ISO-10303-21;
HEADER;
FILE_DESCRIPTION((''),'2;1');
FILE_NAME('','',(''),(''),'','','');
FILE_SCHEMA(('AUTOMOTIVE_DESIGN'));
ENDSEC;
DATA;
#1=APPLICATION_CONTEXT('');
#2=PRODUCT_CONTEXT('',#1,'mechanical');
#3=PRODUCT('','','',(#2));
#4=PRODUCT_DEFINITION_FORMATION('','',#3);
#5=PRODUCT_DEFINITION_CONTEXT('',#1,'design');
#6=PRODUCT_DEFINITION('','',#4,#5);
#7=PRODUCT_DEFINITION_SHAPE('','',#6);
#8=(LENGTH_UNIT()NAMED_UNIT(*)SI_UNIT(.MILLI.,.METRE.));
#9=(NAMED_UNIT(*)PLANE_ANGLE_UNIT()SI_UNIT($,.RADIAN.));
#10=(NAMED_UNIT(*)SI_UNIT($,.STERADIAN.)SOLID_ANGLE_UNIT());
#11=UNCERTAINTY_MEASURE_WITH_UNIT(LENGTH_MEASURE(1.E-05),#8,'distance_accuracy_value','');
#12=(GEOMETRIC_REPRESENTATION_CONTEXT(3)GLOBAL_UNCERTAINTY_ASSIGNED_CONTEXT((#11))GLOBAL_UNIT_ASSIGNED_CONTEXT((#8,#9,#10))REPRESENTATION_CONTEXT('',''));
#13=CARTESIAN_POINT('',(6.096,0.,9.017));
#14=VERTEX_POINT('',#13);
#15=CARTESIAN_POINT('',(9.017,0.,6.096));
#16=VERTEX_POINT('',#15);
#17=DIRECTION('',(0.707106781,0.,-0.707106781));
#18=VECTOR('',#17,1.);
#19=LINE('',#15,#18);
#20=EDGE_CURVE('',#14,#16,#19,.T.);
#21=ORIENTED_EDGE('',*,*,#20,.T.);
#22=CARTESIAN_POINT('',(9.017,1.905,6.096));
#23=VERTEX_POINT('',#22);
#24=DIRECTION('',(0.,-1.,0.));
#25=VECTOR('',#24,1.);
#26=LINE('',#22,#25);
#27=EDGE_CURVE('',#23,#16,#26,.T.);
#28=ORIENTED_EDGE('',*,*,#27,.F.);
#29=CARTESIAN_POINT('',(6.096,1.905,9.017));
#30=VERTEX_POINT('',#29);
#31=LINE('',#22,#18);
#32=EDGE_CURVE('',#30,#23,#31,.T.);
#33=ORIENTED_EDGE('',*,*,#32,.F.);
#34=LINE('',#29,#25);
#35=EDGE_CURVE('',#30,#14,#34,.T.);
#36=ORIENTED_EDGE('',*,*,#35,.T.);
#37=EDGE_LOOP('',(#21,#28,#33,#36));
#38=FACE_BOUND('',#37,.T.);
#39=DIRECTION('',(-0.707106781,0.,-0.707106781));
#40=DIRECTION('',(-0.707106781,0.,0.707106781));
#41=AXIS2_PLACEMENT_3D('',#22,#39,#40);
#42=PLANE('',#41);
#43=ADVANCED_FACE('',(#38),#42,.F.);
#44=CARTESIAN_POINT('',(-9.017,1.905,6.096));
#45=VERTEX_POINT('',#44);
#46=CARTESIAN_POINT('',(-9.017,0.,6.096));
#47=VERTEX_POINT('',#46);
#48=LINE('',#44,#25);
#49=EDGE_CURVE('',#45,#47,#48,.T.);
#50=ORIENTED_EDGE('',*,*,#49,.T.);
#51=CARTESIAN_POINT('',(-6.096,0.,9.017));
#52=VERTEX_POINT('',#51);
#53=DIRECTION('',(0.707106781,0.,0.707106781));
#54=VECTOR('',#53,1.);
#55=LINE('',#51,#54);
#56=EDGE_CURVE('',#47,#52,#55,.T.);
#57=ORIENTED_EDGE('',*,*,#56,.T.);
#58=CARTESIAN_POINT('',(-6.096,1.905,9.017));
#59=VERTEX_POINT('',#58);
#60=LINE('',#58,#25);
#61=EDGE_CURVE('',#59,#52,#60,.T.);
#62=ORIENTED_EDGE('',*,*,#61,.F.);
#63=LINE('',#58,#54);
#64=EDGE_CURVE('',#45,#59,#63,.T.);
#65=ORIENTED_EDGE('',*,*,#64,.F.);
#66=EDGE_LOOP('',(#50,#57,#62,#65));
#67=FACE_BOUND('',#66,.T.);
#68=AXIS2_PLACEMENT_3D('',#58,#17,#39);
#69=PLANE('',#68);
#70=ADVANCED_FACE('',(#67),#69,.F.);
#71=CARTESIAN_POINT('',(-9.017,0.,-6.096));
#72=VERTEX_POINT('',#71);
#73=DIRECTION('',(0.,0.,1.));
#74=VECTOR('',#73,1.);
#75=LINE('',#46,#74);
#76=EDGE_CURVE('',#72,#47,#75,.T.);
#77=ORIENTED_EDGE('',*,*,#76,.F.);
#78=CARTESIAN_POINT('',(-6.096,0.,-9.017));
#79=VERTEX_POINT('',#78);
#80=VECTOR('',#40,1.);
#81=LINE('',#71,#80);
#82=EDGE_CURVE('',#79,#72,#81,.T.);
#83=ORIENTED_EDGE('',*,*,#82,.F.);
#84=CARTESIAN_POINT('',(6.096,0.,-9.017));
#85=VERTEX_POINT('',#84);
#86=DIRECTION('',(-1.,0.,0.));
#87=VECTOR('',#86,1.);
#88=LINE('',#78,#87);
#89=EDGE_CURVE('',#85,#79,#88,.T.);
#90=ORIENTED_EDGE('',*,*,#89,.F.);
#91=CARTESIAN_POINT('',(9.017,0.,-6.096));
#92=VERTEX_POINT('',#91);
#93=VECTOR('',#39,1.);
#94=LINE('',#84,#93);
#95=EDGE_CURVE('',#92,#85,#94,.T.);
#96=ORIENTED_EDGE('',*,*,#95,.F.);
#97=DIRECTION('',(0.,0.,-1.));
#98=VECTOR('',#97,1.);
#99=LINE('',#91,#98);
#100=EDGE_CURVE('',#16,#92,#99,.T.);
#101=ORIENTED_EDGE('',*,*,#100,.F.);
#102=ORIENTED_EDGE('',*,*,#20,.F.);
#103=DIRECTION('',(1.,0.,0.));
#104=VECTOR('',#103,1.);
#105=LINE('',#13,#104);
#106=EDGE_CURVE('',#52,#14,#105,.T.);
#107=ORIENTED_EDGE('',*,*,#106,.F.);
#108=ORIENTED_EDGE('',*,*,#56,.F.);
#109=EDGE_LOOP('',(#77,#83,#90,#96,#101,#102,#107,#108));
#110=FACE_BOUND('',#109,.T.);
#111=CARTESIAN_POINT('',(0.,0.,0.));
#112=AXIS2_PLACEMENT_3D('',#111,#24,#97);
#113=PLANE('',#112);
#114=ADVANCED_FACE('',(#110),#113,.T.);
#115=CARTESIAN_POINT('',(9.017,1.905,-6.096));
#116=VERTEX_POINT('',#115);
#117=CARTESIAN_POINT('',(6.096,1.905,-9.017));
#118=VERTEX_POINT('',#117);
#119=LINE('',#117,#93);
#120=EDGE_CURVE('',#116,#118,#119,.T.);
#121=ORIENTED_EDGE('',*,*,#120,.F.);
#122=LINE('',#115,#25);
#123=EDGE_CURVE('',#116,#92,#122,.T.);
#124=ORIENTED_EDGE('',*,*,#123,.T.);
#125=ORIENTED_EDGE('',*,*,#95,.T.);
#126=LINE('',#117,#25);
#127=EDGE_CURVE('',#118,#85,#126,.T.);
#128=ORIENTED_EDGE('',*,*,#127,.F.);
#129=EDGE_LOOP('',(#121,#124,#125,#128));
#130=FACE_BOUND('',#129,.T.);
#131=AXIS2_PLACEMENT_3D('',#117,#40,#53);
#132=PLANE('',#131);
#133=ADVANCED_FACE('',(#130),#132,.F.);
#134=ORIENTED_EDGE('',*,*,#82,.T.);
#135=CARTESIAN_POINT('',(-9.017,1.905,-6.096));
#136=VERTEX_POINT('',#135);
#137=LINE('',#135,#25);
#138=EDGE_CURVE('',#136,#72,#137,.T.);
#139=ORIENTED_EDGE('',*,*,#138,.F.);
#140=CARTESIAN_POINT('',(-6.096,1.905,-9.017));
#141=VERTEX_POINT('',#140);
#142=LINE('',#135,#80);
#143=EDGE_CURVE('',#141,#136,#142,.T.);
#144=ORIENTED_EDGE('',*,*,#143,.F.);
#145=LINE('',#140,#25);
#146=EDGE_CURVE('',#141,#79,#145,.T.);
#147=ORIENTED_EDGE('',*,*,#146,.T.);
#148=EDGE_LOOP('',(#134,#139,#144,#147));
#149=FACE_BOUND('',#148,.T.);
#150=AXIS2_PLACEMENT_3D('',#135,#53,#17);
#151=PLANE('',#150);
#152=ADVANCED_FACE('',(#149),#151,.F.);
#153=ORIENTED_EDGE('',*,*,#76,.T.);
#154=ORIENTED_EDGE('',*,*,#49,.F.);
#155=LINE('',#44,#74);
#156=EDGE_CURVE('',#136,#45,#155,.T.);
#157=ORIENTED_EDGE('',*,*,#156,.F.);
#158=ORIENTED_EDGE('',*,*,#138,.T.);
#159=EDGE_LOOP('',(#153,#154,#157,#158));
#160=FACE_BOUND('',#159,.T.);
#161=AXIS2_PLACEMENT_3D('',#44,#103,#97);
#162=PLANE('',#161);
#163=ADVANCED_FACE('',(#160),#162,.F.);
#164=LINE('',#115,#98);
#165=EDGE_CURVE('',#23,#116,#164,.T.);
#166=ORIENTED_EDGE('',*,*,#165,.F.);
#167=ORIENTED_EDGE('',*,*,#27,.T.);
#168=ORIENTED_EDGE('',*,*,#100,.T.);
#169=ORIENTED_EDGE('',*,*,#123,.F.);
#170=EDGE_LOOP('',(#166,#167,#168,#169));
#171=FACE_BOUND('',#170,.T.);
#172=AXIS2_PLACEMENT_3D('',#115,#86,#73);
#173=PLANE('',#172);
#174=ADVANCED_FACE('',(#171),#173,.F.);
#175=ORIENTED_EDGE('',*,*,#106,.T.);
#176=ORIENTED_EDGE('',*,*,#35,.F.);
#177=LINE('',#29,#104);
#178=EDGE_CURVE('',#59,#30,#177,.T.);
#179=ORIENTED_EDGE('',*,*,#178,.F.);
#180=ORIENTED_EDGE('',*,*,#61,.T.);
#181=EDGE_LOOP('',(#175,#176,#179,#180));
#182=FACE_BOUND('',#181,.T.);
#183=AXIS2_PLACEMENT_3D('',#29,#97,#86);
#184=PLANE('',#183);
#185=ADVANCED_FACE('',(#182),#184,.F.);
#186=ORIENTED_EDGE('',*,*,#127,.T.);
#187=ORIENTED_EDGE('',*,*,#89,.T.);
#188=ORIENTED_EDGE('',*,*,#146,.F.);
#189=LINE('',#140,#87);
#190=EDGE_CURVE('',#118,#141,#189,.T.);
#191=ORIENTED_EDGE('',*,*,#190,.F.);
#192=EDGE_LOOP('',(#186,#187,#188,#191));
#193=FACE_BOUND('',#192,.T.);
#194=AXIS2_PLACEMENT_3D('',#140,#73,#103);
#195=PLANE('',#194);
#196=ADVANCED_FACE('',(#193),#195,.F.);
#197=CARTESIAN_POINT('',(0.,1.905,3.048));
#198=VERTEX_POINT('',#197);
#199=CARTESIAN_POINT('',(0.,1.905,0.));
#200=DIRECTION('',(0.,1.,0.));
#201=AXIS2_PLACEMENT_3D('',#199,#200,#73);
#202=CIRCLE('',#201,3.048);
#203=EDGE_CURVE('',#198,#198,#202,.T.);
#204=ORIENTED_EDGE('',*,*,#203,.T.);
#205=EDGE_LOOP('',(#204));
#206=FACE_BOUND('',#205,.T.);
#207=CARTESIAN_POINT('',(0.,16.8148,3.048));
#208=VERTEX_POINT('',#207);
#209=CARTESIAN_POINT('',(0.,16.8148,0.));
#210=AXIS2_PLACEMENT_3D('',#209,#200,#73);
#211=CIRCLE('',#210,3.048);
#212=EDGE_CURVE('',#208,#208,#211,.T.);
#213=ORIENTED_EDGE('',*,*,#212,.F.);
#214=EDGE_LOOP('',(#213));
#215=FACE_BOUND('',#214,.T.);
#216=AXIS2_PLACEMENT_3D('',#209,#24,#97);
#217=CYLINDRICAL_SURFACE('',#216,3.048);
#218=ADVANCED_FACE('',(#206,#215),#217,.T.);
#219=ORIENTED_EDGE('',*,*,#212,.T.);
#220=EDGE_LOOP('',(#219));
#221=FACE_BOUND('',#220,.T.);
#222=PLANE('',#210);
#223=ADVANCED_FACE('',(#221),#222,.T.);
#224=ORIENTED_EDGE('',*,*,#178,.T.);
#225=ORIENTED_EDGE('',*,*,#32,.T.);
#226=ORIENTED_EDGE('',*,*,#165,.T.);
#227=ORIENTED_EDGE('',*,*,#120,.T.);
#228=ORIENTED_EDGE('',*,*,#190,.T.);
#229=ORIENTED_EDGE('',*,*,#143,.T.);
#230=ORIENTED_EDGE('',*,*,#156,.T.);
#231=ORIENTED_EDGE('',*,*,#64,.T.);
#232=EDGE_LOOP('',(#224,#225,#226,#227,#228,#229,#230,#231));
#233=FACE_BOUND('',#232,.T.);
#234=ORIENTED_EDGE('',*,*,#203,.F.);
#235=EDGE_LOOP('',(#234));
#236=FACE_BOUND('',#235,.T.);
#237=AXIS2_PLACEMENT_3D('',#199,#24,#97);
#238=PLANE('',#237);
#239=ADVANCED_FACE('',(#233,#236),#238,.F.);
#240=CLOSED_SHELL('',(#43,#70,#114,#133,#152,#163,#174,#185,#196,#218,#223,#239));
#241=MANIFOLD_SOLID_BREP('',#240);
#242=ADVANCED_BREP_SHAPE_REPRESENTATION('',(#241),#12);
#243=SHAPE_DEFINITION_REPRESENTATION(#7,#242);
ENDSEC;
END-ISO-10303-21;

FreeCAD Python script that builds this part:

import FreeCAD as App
import Part
import Sketcher

V = App.Vector
Q = App.Units.Quantity


def add_polygon(sketch, points):
    """Adds a closed chain of lines whose ends are joined by coincident constraints."""
    first, n = sketch.GeometryCount, len(points)
    for a, b in zip(points, points[1:] + points[:1]):
        sketch.addGeometry(Part.LineSegment(App.Vector(*a, 0), App.Vector(*b, 0)), False)
    for i in range(n):
        sketch.addConstraint(Sketcher.Constraint("Coincident", first + i, 2, first + (i + 1) % n, 1))

doc = App.newDocument("Part")
body = doc.addObject("PartDesign::Body", "Body")

# Sketch on XZ plane
sketch1 = body.newObject("Sketcher::SketchObject", "Sketch")
sketch1.AttachmentSupport = (doc.getObject("XZ_Plane"), [""])
sketch1.MapMode = "FlatFace"
add_polygon(sketch1, [(6.1, -9), (-6.1, -9), (-9, -6.1), (-9, 6.1), (-6.1, 9), (6.1, 9), (9, 6.1), (9, -6.1)])  # lines 0-7
sketch1.addConstraint(Sketcher.Constraint("Horizontal", 0))
sketch1.addConstraint(Sketcher.Constraint("Vertical", 2))
sketch1.addConstraint(Sketcher.Constraint("Horizontal", 4))
sketch1.addConstraint(Sketcher.Constraint("Vertical", 6))
sketch1.addConstraint(Sketcher.Constraint("Symmetric", 0, 2, 4, 2, -1, 1))
sketch1.addConstraint(Sketcher.Constraint("Symmetric", 1, 2, 5, 2, -1, 1))
sketch1.addConstraint(Sketcher.Constraint("Perpendicular", 1, 3))
sketch1.addConstraint(Sketcher.Constraint("Perpendicular", 5, 7))
sketch1.addConstraint(Sketcher.Constraint("Horizontal", 2, 2, 5, 2))
sketch1.addConstraint(Sketcher.Constraint("Horizontal", 1, 2, 6, 2))
sketch1.addConstraint(Sketcher.Constraint("Vertical", 0, 2, 3, 2))
sketch1.addConstraint(Sketcher.Constraint("Equal", 4, 2))
sketch1.addConstraint(Sketcher.Constraint("DistanceX", 0, 2, 0, 1, Q("0.48 in")))
sketch1.addConstraint(Sketcher.Constraint("DistanceY", 0, 2, 3, 2, Q("0.71 in")))
pad1 = body.newObject("PartDesign::Pad", "Pad")
pad1.Profile = sketch1
pad1.Length = Q("0.075 in")
pad1.Reversed = True

# Sketch on XZ plane
sketch2 = body.newObject("Sketcher::SketchObject", "Sketch001")
sketch2.AttachmentSupport = (doc.getObject("XZ_Plane"), [""])
sketch2.MapMode = "FlatFace"
sketch2.AttachmentOffset = App.Placement(V(0, 0, -0.075 * 25.4), App.Rotation())
sketch2.addGeometry(Part.Circle(V(0, 0, 0), V(0, 0, 1), 3), False)
sketch2.addConstraint(Sketcher.Constraint("Coincident", 0, 3, -1, 1))
sketch2.addConstraint(Sketcher.Constraint("Diameter", 0, Q("0.24 in")))
pad2 = body.newObject("PartDesign::Pad", "Pad001")
pad2.Profile = sketch2
pad2.Length = Q("0.587 in")
pad2.Reversed = True

doc.recompute()
